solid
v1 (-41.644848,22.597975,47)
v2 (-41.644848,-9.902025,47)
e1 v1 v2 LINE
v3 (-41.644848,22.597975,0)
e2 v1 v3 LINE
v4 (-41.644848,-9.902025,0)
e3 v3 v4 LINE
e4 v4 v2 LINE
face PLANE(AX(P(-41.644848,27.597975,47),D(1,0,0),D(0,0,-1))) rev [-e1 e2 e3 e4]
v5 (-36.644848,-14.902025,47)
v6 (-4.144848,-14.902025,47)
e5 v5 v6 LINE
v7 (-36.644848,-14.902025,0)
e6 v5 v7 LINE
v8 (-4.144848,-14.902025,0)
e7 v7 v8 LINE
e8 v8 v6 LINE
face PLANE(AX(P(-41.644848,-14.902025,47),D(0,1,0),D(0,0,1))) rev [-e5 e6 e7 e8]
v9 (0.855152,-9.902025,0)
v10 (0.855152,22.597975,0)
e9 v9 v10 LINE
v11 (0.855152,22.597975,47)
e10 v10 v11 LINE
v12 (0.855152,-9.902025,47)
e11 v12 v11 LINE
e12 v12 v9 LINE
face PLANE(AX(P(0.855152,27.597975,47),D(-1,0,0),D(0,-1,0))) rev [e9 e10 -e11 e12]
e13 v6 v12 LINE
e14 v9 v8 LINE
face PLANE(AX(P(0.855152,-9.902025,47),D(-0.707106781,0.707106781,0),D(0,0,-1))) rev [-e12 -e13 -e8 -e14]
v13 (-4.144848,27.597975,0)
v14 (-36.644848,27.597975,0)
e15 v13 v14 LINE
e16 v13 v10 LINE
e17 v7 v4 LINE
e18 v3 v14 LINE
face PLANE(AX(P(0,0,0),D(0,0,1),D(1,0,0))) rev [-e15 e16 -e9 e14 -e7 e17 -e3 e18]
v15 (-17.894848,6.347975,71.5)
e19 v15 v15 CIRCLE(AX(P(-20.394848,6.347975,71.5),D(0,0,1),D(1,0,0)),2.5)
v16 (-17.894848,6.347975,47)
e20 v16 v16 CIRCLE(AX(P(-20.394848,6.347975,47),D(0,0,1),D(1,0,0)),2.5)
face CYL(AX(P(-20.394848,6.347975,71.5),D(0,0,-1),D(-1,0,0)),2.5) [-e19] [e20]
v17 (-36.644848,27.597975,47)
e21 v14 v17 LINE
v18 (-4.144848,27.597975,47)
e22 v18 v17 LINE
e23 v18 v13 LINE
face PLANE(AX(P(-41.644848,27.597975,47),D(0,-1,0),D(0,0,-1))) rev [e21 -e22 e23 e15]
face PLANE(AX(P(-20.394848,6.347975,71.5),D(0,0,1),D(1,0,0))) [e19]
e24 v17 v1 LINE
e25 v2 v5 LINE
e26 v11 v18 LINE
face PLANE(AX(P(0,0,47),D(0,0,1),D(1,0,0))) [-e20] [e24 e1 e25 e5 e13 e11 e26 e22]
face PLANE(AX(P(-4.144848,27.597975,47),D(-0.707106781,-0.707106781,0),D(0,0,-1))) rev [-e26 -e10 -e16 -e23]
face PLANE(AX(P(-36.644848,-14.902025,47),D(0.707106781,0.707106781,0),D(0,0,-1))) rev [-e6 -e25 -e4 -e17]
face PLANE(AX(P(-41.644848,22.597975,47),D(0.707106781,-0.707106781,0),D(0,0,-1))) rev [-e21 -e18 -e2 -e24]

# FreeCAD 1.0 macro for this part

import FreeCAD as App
import Part
import Sketcher

V = App.Vector
Q = App.Units.Quantity


def edges_at(feature, points):
    """Names of the edges that pass closest to the given points."""
    edges = feature.Shape.Edges
    near = lambda p: min(range(len(edges)), key=lambda i: edges[i].distToShape(Part.Vertex(*p))[0])
    return sorted({f"Edge{near(p) + 1}" for p in points})


def add_polygon(sketch, points):
    """Adds a closed chain of lines whose ends are joined by coincident constraints."""
    first, n = sketch.GeometryCount, len(points)
    for a, b in zip(points, points[1:] + points[:1]):
        sketch.addGeometry(Part.LineSegment(App.Vector(*a, 0), App.Vector(*b, 0)), False)
    for i in range(n):
        sketch.addConstraint(Sketcher.Constraint("Coincident", first + i, 2, first + (i + 1) % n, 1))

doc = App.newDocument("Part")
body = doc.addObject("PartDesign::Body", "Body")

sketch1 = body.newObject("Sketcher::SketchObject", "Sketch")
sketch1.AttachmentSupport = (doc.getObject("XY_Plane"), [""])
sketch1.MapMode = "FlatFace"
add_polygon(sketch1, [(-42, 28), (-42, -15), (1, -15), (1, 28)])
sketch1.addConstraint(Sketcher.Constraint("Vertical", 0))
sketch1.addConstraint(Sketcher.Constraint("Horizontal", 1))
sketch1.addConstraint(Sketcher.Constraint("Vertical", 2))
sketch1.addConstraint(Sketcher.Constraint("Horizontal", 3))
sketch1.addConstraint(Sketcher.Constraint("Equal", 3, 0))
sketch1.addConstraint(Sketcher.Constraint("DistanceX", 1, 1, 1, 2, Q("42.5 mm")))
sketch1.addConstraint(Sketcher.Constraint("DistanceX", 0, 2, -1, 1, Q("41.644848 mm")))
sketch1.addConstraint(Sketcher.Constraint("DistanceY", 0, 2, -1, 1, Q("14.902025 mm")))
pad1 = body.newObject("PartDesign::Pad", "Pad")
pad1.Profile = sketch1
pad1.Length = 47
doc.recompute()

chamfer = body.newObject("PartDesign::Chamfer", "Chamfer")
chamfer.Base = (pad1, edges_at(pad1, [
    (-41.645, 27.598, 23.5),
    (0.855, 27.598, 23.5),
    (0.855, -14.902, 23.5),
    (-41.645, -14.902, 23.5),
]))
chamfer.Size = 5

sketch2 = body.newObject("Sketcher::SketchObject", "Sketch001")
sketch2.AttachmentSupport = (doc.getObject("XY_Plane"), [""])
sketch2.MapMode = "FlatFace"
sketch2.AttachmentOffset = App.Placement(V(0, 0, 47), App.Rotation())
sketch2.addGeometry(Part.Circle(V(-20.4, 6.3, 0), V(0, 0, 1), 2.5), False)
sketch2.addConstraint(Sketcher.Constraint("Diameter", 0, Q("5 mm")))
sketch2.addConstraint(Sketcher.Constraint("DistanceX", 0, 3, -1, 1, Q("20.394848 mm")))
sketch2.addConstraint(Sketcher.Constraint("DistanceY", -1, 1, 0, 3, Q("6.347975 mm")))
pad2 = body.newObject("PartDesign::Pad", "Pad001")
pad2.Profile = sketch2
pad2.Length = 24.5

doc.recompute()
